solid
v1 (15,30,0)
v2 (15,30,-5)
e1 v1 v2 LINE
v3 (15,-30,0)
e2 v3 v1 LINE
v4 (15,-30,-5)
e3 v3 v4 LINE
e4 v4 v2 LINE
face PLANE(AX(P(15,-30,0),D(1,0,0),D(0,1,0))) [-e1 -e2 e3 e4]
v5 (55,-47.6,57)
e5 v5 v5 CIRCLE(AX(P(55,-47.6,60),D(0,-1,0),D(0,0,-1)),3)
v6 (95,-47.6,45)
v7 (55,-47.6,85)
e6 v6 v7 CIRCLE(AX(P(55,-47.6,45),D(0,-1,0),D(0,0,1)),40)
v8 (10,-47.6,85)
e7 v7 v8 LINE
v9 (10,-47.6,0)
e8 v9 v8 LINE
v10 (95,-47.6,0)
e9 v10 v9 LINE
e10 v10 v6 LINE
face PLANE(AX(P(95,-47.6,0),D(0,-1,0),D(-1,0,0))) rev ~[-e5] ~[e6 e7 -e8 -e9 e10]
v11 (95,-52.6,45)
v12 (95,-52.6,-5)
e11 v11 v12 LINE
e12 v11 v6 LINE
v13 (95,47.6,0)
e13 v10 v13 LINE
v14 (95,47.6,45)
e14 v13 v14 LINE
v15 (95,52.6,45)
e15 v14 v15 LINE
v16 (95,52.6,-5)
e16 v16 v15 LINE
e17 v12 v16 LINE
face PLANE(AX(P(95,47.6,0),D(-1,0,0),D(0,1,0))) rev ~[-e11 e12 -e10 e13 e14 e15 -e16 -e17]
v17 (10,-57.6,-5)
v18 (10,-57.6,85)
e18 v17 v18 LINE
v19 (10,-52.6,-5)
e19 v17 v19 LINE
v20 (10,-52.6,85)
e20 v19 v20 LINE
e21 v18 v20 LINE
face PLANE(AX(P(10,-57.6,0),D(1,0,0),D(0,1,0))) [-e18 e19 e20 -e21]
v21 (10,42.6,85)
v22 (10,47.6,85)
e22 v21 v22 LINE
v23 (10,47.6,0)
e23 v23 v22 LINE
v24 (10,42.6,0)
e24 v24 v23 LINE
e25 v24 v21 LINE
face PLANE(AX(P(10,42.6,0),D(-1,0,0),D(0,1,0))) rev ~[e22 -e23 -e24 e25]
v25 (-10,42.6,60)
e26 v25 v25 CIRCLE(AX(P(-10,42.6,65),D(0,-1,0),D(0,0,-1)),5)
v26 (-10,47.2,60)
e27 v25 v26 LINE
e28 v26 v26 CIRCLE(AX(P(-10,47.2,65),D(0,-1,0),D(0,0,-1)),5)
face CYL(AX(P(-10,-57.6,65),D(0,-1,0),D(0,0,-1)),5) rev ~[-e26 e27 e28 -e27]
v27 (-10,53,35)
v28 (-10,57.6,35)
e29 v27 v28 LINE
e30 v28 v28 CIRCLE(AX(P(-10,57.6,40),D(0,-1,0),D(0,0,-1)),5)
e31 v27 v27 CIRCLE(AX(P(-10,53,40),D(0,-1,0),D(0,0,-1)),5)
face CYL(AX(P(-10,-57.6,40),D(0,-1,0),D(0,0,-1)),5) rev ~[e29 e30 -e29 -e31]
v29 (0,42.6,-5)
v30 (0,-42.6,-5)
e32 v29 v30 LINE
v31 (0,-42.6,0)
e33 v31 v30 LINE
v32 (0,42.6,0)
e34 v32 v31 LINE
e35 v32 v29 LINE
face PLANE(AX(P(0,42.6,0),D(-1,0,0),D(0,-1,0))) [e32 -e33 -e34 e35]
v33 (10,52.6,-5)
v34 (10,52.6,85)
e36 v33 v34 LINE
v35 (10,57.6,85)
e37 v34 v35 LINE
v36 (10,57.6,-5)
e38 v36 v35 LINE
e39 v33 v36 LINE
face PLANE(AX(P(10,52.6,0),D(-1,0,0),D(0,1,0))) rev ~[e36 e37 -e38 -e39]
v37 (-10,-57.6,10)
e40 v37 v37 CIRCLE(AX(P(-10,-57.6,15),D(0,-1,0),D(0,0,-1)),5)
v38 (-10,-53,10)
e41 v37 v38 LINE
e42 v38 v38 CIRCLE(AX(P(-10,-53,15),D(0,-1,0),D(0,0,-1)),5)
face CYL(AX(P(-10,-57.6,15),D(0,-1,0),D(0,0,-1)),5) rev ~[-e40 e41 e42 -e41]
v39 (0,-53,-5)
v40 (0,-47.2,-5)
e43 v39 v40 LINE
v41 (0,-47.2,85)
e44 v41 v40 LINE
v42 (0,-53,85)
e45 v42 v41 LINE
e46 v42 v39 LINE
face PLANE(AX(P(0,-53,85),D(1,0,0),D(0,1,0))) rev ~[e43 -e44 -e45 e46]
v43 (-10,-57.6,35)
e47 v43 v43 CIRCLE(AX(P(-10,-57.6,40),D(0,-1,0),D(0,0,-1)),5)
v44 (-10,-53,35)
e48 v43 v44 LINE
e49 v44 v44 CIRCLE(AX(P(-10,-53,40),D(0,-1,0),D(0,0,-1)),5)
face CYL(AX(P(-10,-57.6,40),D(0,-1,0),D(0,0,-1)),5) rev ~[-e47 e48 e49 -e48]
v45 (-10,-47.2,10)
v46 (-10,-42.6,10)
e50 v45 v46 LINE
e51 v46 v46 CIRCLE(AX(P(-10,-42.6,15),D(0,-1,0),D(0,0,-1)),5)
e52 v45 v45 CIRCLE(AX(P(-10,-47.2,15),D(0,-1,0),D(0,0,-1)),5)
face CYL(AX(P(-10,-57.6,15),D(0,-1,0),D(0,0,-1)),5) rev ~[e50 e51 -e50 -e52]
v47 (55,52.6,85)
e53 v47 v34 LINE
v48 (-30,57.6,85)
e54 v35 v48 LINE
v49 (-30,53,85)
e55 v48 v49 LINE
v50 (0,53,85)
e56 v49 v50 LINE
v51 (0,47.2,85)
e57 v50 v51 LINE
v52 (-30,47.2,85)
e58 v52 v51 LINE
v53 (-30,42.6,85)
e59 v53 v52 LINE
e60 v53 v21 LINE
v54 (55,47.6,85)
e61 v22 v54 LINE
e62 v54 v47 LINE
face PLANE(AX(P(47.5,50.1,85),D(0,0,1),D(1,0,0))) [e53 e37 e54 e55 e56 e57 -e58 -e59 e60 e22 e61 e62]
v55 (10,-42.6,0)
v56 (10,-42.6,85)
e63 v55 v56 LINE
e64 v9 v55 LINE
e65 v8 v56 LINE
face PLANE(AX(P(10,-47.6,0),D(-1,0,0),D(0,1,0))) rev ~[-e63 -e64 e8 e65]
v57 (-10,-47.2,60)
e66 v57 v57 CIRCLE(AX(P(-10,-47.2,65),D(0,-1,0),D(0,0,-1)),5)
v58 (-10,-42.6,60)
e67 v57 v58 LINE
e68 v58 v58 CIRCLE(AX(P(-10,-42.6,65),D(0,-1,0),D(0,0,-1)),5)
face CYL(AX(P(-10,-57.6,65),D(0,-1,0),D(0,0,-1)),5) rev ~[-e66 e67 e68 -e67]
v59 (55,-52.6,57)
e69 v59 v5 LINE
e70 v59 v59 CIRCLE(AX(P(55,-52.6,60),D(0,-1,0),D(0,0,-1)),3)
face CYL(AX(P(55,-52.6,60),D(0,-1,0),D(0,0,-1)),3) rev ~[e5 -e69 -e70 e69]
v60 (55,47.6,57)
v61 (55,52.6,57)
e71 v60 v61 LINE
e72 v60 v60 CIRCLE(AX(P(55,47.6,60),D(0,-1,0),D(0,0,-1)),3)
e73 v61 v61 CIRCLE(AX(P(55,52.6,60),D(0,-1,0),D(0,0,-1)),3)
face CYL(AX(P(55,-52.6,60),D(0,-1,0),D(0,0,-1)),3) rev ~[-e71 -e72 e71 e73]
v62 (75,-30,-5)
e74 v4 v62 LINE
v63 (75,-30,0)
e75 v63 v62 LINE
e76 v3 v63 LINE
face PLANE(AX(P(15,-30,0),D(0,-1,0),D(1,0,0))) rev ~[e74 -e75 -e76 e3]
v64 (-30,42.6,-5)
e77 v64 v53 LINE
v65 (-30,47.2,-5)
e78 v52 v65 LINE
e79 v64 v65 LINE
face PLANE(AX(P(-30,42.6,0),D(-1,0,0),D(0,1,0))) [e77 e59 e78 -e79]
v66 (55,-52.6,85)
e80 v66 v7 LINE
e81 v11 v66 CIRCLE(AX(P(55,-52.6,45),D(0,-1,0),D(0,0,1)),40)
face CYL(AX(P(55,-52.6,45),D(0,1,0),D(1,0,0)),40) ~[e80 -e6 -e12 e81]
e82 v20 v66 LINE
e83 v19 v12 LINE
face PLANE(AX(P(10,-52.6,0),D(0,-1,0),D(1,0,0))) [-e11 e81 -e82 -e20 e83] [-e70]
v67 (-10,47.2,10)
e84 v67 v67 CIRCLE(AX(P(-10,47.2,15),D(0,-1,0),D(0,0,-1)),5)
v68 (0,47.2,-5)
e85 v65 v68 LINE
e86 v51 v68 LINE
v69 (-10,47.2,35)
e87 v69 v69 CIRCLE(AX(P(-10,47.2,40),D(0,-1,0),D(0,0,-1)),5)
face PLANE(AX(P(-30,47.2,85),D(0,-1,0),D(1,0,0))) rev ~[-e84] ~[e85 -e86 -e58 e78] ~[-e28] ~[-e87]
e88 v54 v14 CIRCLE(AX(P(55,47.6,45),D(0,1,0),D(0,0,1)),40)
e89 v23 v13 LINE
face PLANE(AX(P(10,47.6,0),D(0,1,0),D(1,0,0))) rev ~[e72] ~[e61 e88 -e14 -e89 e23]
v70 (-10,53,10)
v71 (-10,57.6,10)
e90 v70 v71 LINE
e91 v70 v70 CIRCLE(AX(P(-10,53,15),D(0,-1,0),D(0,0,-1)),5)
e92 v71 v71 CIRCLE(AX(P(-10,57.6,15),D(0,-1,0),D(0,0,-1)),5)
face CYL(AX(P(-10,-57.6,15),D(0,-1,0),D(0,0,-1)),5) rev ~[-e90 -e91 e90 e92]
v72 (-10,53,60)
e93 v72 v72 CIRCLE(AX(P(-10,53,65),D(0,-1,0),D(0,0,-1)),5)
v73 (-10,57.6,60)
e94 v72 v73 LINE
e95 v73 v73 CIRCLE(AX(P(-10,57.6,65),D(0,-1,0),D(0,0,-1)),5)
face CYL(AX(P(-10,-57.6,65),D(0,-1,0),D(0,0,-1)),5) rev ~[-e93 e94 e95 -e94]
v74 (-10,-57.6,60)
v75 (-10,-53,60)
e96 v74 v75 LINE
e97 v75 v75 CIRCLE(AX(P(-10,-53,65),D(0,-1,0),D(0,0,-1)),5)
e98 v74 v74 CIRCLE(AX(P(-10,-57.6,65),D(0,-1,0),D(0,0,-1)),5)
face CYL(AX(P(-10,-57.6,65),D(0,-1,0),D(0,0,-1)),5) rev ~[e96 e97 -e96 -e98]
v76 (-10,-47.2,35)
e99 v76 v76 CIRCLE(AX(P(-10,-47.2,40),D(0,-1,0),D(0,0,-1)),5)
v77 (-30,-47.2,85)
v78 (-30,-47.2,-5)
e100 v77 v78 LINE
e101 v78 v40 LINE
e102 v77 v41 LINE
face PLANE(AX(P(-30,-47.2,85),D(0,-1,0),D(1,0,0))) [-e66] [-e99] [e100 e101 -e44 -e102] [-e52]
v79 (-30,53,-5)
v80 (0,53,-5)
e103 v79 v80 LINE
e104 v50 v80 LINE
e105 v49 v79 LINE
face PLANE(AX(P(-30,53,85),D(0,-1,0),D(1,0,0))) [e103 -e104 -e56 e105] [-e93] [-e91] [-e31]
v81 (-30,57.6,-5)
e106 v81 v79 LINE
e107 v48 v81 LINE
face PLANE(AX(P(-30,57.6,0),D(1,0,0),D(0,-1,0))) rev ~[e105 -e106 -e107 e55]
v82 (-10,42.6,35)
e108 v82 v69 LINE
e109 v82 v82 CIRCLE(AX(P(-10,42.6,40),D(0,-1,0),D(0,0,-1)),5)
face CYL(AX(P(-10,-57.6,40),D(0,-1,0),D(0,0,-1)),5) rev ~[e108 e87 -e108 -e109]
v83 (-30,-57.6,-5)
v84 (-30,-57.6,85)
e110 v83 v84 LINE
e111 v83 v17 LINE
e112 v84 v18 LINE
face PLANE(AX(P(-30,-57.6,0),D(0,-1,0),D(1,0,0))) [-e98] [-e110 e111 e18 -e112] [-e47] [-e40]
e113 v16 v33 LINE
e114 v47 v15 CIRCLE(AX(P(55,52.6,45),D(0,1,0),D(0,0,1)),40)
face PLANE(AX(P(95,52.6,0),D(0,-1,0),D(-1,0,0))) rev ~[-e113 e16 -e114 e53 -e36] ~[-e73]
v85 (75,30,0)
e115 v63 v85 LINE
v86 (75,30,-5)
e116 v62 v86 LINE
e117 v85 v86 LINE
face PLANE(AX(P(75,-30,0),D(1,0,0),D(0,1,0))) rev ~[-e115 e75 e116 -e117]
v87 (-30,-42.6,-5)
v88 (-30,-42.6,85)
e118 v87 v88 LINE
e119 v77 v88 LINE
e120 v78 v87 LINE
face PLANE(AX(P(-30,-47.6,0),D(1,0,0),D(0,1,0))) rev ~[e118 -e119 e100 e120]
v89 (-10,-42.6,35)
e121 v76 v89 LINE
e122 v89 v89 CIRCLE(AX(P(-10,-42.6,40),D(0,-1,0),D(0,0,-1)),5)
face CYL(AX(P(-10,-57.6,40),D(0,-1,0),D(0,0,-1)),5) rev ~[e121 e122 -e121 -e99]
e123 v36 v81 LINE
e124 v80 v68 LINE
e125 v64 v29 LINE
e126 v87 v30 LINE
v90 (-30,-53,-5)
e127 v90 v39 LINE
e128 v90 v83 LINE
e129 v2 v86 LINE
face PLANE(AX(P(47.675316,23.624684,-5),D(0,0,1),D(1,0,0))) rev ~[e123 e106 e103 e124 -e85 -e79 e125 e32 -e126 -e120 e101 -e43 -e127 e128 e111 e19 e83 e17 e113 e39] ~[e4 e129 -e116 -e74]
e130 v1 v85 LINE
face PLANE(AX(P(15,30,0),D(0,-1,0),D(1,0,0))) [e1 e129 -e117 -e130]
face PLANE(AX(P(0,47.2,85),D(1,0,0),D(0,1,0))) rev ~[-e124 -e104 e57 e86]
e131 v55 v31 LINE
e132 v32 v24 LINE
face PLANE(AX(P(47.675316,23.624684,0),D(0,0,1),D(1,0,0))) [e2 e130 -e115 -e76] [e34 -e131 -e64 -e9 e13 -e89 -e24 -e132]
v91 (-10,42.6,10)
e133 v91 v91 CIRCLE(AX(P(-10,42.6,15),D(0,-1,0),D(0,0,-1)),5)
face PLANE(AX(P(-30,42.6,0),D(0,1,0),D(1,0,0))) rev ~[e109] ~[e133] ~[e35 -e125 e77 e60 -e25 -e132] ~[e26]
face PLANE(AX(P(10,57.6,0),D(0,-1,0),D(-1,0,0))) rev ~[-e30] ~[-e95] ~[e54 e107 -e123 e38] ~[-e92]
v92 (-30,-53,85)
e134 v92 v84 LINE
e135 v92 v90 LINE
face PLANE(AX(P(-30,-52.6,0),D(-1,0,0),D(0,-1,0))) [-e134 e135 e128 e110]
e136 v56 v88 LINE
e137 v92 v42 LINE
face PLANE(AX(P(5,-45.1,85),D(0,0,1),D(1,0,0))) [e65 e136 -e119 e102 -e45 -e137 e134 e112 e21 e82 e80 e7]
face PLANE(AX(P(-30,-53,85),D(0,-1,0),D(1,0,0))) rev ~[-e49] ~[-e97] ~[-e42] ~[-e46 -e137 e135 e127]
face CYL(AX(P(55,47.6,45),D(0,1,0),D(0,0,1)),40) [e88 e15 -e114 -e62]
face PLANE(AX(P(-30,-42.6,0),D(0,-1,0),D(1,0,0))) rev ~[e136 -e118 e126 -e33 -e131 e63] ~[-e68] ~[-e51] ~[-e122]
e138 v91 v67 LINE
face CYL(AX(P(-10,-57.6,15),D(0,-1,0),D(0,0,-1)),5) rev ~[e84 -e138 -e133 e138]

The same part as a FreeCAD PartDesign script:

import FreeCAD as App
import Part
import Sketcher
from FreeCAD import Vector
Q = App.Units.Quantity


def edges_at(feature, points):
    """Names of the edges that pass closest to the given points."""
    edges = feature.Shape.Edges
    near = lambda p: min(range(len(edges)), key=lambda i: edges[i].distToShape(Part.Vertex(*p))[0])
    return sorted({f"Edge{near(p) + 1}" for p in points})


def add_polygon(sketch, points):
    """Adds a closed chain of lines whose ends are joined by coincident constraints."""
    first, n = sketch.GeometryCount, len(points)
    for a, b in zip(points, points[1:] + points[:1]):
        sketch.addGeometry(Part.LineSegment(App.Vector(*a, 0), App.Vector(*b, 0)), False)
    for i in range(n):
        sketch.addConstraint(Sketcher.Constraint("Coincident", first + i, 2, first + (i + 1) % n, 1))

doc = App.newDocument("Part")
body = doc.addObject("PartDesign::Body", "Body")

sketch1 = body.newObject("Sketcher::SketchObject", "Sketch")
sketch1.AttachmentSupport = (doc.getObject("XY_Plane"), [""])
sketch1.MapMode = "FlatFace"
add_polygon(sketch1, [(0, 42.6), (0, -42.6), (-30, -42.6), (-30, -47.6), (0, -47.6), (0, -52.6), (-30, -52.6), (-30, -57.6), (10, -57.6), (10, -52.6), (95, -52.6), (95, 52.6), (10, 52.6), (10, 57.6), (-30, 57.6), (-30, 52.6), (0, 52.6), (0, 47.6), (-30, 47.6), (-30, 42.6)])
sketch1.addConstraint(Sketcher.Constraint("Vertical", 0))
sketch1.addConstraint(Sketcher.Constraint("Horizontal", 1))
sketch1.addConstraint(Sketcher.Constraint("Vertical", 2))
sketch1.addConstraint(Sketcher.Constraint("Horizontal", 3))
sketch1.addConstraint(Sketcher.Constraint("Vertical", 4))
sketch1.addConstraint(Sketcher.Constraint("Horizontal", 5))
sketch1.addConstraint(Sketcher.Constraint("Vertical", 6))
sketch1.addConstraint(Sketcher.Constraint("Horizontal", 7))
sketch1.addConstraint(Sketcher.Constraint("Vertical", 8))
sketch1.addConstraint(Sketcher.Constraint("Horizontal", 9))
sketch1.addConstraint(Sketcher.Constraint("Vertical", 10))
sketch1.addConstraint(Sketcher.Constraint("Horizontal", 11))
sketch1.addConstraint(Sketcher.Constraint("Vertical", 12))
sketch1.addConstraint(Sketcher.Constraint("Horizontal", 13))
sketch1.addConstraint(Sketcher.Constraint("Vertical", 14))
sketch1.addConstraint(Sketcher.Constraint("Horizontal", 15))
sketch1.addConstraint(Sketcher.Constraint("Vertical", 16))
sketch1.addConstraint(Sketcher.Constraint("Horizontal", 17))
sketch1.addConstraint(Sketcher.Constraint("Vertical", 18))
sketch1.addConstraint(Sketcher.Constraint("Horizontal", 19))
sketch1.addConstraint(Sketcher.Constraint("Symmetric", 4, 2, 15, 2, -1, 1))
sketch1.addConstraint(Sketcher.Constraint("Symmetric", 0, 2, 19, 2, -1, 1))
sketch1.addConstraint(Sketcher.Constraint("Symmetric", 8, 2, 11, 2, -1))
sketch1.addConstraint(Sketcher.Constraint("Symmetric", 6, 2, 13, 2, -1))
sketch1.addConstraint(Sketcher.Constraint("Symmetric", 3, 2, 16, 2, -1))
sketch1.addConstraint(Sketcher.Constraint("Horizontal", 5, 2, 8, 2))
sketch1.addConstraint(Sketcher.Constraint("Vertical", 2, 2, 5, 2))
sketch1.addConstraint(Sketcher.Constraint("Vertical", 14, 2, 17, 2))
sketch1.addConstraint(Sketcher.Constraint("Equal", 2, 4))
sketch1.addConstraint(Sketcher.Constraint("Equal", 4, 6))
sketch1.addConstraint(Sketcher.Constraint("DistanceX", 1, 2, 1, 1, Q("30 mm")))
sketch1.addConstraint(Sketcher.Constraint("DistanceX", 7, 1, 7, 2, Q("40 mm")))
sketch1.addConstraint(Sketcher.Constraint("DistanceX", 9, 1, 9, 2, Q("85 mm")))
sketch1.addConstraint(Sketcher.Constraint("DistanceY", 2, 2, 2, 1, Q("5 mm")))
sketch1.addConstraint(Sketcher.Constraint("DistanceY", 0, 2, 0, 1, Q("85.2 mm")))
pad1 = body.newObject("PartDesign::Pad", "Pad")
pad1.Profile = sketch1
pad1.Length = 5
pad1.Reversed = True

sketch2 = body.newObject("Sketcher::SketchObject", "Sketch001")
sketch2.AttachmentSupport = (doc.getObject("XY_Plane"), [""])
sketch2.MapMode = "FlatFace"
add_polygon(sketch2, [(0, 52.6), (0, 47.6), (-30, 47.6), (-30, 42.6), (10, 42.6), (10, 47.6), (95, 47.6), (95, 52.6), (10, 52.6), (10, 57.6), (-30, 57.6), (-30, 52.6)])
add_polygon(sketch2, [(10, -47.6), (10, -42.6), (-30, -42.6), (-30, -47.6), (0, -47.6), (0, -52.6), (-30, -52.6), (-30, -57.6), (10, -57.6), (10, -52.6), (95, -52.6), (95, -47.6)])
sketch2.addConstraint(Sketcher.Constraint("Vertical", 0))
sketch2.addConstraint(Sketcher.Constraint("Horizontal", 1))
sketch2.addConstraint(Sketcher.Constraint("Vertical", 2))
sketch2.addConstraint(Sketcher.Constraint("Horizontal", 3))
sketch2.addConstraint(Sketcher.Constraint("Vertical", 4))
sketch2.addConstraint(Sketcher.Constraint("Horizontal", 5))
sketch2.addConstraint(Sketcher.Constraint("Vertical", 6))
sketch2.addConstraint(Sketcher.Constraint("Horizontal", 7))
sketch2.addConstraint(Sketcher.Constraint("Vertical", 8))
sketch2.addConstraint(Sketcher.Constraint("Horizontal", 9))
sketch2.addConstraint(Sketcher.Constraint("Vertical", 10))
sketch2.addConstraint(Sketcher.Constraint("Horizontal", 11))
sketch2.addConstraint(Sketcher.Constraint("Vertical", 12))
sketch2.addConstraint(Sketcher.Constraint("Horizontal", 13))
sketch2.addConstraint(Sketcher.Constraint("Vertical", 14))
sketch2.addConstraint(Sketcher.Constraint("Horizontal", 15))
sketch2.addConstraint(Sketcher.Constraint("Vertical", 16))
sketch2.addConstraint(Sketcher.Constraint("Horizontal", 17))
sketch2.addConstraint(Sketcher.Constraint("Vertical", 18))
sketch2.addConstraint(Sketcher.Constraint("Horizontal", 19))
sketch2.addConstraint(Sketcher.Constraint("Vertical", 20))
sketch2.addConstraint(Sketcher.Constraint("Horizontal", 21))
sketch2.addConstraint(Sketcher.Constraint("Vertical", 22))
sketch2.addConstraint(Sketcher.Constraint("Horizontal", 23))
sketch2.addConstraint(Sketcher.Constraint("Symmetric", 0, 2, 15, 2, -1, 1))
sketch2.addConstraint(Sketcher.Constraint("Symmetric", 3, 2, 12, 2, -1))
sketch2.addConstraint(Sketcher.Constraint("Symmetric", 11, 2, 16, 2, -1))
sketch2.addConstraint(Sketcher.Constraint("Symmetric", 9, 2, 18, 2, -1))
sketch2.addConstraint(Sketcher.Constraint("Symmetric", 7, 2, 20, 2, -1))
sketch2.addConstraint(Sketcher.Constraint("Symmetric", 5, 2, 22, 2, -1))
sketch2.addConstraint(Sketcher.Constraint("Horizontal", 1, 2, 4, 2))
sketch2.addConstraint(Sketcher.Constraint("Horizontal", 7, 2, 10, 2))
sketch2.addConstraint(Sketcher.Constraint("Vertical", 4, 2, 7, 2))
sketch2.addConstraint(Sketcher.Constraint("Vertical", 2, 2, 9, 2))
sketch2.addConstraint(Sketcher.Constraint("Vertical", 10, 2, 13, 2))
sketch2.addConstraint(Sketcher.Constraint("Equal", 0, 2))
sketch2.addConstraint(Sketcher.Constraint("Equal", 6, 8))
sketch2.addConstraint(Sketcher.Constraint("DistanceX", 1, 2, 1, 1, Q("30 mm")))
sketch2.addConstraint(Sketcher.Constraint("DistanceX", 3, 1, 3, 2, Q("40 mm")))
sketch2.addConstraint(Sketcher.Constraint("DistanceX", 5, 1, 5, 2, Q("85 mm")))
sketch2.addConstraint(Sketcher.Constraint("DistanceY", 0, 2, 0, 1, Q("5 mm")))
sketch2.addConstraint(Sketcher.Constraint("DistanceY", -1, 1, 0, 2, Q("47.6 mm")))
pad2 = body.newObject("PartDesign::Pad", "Pad001")
pad2.Profile = sketch2
pad2.Length = 85

sketch3 = body.newObject("Sketcher::SketchObject", "Sketch002")
sketch3.AttachmentSupport = (doc.getObject("XZ_Plane"), [""])
sketch3.MapMode = "FlatFace"
sketch3.AttachmentOffset = App.Placement(Vector(0, 0, 52.6), App.Rotation())
sketch3.addGeometry(Part.Circle(Vector(55, 60, 0), Vector(0, 0, 1), 3), False)
sketch3.addConstraint(Sketcher.Constraint("Diameter", 0, Q("6 mm")))
sketch3.addConstraint(Sketcher.Constraint("DistanceX", -1, 1, 0, 3, Q("55 mm")))
sketch3.addConstraint(Sketcher.Constraint("DistanceY", -1, 1, 0, 3, Q("60 mm")))
pocket1 = body.newObject("PartDesign::Pocket", "Pocket")
pocket1.Profile = sketch3
pocket1.Length = 144
doc.recompute()

fillet = body.newObject("PartDesign::Fillet", "Fillet")
fillet.Base = (pocket1, edges_at(pocket1, [(95, -50.1, 85), (95, 50.1, 85)]))
fillet.Radius = 40

sketch4 = body.newObject("Sketcher::SketchObject", "Sketch003")
sketch4.AttachmentSupport = (doc.getObject("XY_Plane"), [""])
sketch4.MapMode = "FlatFace"
sketch4.AttachmentOffset = App.Placement(Vector(0, 0, 85), App.Rotation())
add_polygon(sketch4, [(-30, -47.2), (-30, -53), (0, -53), (0, -47.2)])
add_polygon(sketch4, [(-30, 53), (-30, 47.2), (0, 47.2), (0, 53)])
sketch4.addConstraint(Sketcher.Constraint("Vertical", 0))
sketch4.addConstraint(Sketcher.Constraint("Horizontal", 1))
sketch4.addConstraint(Sketcher.Constraint("Vertical", 2))
sketch4.addConstraint(Sketcher.Constraint("Horizontal", 3))
sketch4.addConstraint(Sketcher.Constraint("Vertical", 4))
sketch4.addConstraint(Sketcher.Constraint("Horizontal", 5))
sketch4.addConstraint(Sketcher.Constraint("Vertical", 6))
sketch4.addConstraint(Sketcher.Constraint("Horizontal", 7))
sketch4.addConstraint(Sketcher.Constraint("Symmetric", 2, 2, 5, 2, -1, 1))
sketch4.addConstraint(Sketcher.Constraint("Symmetric", 1, 2, 6, 2, -1))
sketch4.addConstraint(Sketcher.Constraint("Vertical", 3, 2, 4, 2))
sketch4.addConstraint(Sketcher.Constraint("DistanceX", 1, 1, 1, 2, Q("30 mm")))
sketch4.addConstraint(Sketcher.Constraint("DistanceY", 0, 2, 0, 1, Q("5.8 mm")))
sketch4.addConstraint(Sketcher.Constraint("DistanceY", 0, 2, -1, 1, Q("53 mm")))
pocket2 = body.newObject("PartDesign::Pocket", "Pocket001")
pocket2.Profile = sketch4
pocket2.Length = 144

sketch5 = body.newObject("Sketcher::SketchObject", "Sketch004")
sketch5.AttachmentSupport = (doc.getObject("XY_Plane"), [""])
sketch5.MapMode = "FlatFace"
add_polygon(sketch5, [(15, 30), (15, -30), (75, -30), (75, 30)])
sketch5.addConstraint(Sketcher.Constraint("Vertical", 0))
sketch5.addConstraint(Sketcher.Constraint("Horizontal", 1))
sketch5.addConstraint(Sketcher.Constraint("Vertical", 2))
sketch5.addConstraint(Sketcher.Constraint("Horizontal", 3))
sketch5.addConstraint(Sketcher.Constraint("Equal", 3, 0))
sketch5.addConstraint(Sketcher.Constraint("DistanceX", 1, 1, 1, 2, Q("60 mm")))
sketch5.addConstraint(Sketcher.Constraint("DistanceX", -1, 1, 0, 2, Q("15 mm")))
sketch5.addConstraint(Sketcher.Constraint("DistanceY", 0, 2, -1, 1, Q("30 mm")))
pocket3 = body.newObject("PartDesign::Pocket", "Pocket002")
pocket3.Profile = sketch5
pocket3.Length = 144

sketch6 = body.newObject("Sketcher::SketchObject", "Sketch005")
sketch6.AttachmentSupport = (doc.getObject("XZ_Plane"), [""])
sketch6.MapMode = "FlatFace"
sketch6.AttachmentOffset = App.Placement(Vector(0, 0, 57.6), App.Rotation())
sketch6.addGeometry(Part.Circle(Vector(-10, 40, 0), Vector(0, 0, 1), 5), False)
sketch6.addGeometry(Part.Circle(Vector(-10, 65, 0), Vector(0, 0, 1), 5), False)
sketch6.addGeometry(Part.Circle(Vector(-10, 15, 0), Vector(0, 0, 1), 5), False)
sketch6.addConstraint(Sketcher.Constraint("Equal", 0, 1))
sketch6.addConstraint(Sketcher.Constraint("Equal", 1, 2))
sketch6.addConstraint(Sketcher.Constraint("Vertical", 0, 3, 1, 3))
sketch6.addConstraint(Sketcher.Constraint("Vertical", 1, 3, 2, 3))
sketch6.addConstraint(Sketcher.Constraint("Diameter", 0, Q("10 mm")))
sketch6.addConstraint(Sketcher.Constraint("DistanceX", 0, 3, -1, 1, Q("10 mm")))
sketch6.addConstraint(Sketcher.Constraint("DistanceY", -1, 1, 0, 3, Q("40 mm")))
sketch6.addConstraint(Sketcher.Constraint("DistanceY", -1, 1, 1, 3, Q("65 mm")))
sketch6.addConstraint(Sketcher.Constraint("DistanceY", -1, 1, 2, 3, Q("15 mm")))
pocket4 = body.newObject("PartDesign::Pocket", "Pocket003")
pocket4.Profile = sketch6
pocket4.Length = 144

doc.recompute()
